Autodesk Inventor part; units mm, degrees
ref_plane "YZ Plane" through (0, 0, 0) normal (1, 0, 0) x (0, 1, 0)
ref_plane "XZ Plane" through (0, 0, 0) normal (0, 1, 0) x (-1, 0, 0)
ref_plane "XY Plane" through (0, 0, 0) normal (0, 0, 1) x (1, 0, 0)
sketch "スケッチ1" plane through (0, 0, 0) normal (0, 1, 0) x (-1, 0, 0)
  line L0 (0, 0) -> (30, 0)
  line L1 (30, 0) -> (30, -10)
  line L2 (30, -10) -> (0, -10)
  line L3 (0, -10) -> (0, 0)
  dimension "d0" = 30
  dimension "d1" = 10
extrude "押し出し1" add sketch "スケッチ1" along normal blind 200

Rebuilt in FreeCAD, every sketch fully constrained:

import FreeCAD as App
import Part
import Sketcher
from FreeCAD import Vector

doc = App.newDocument("Part")
body = doc.addObject("PartDesign::Body", "Body")

# Sketch on XZ plane
sketch1 = body.newObject("Sketcher::SketchObject", "Sketch")
sketch1.AttachmentSupport = (doc.getObject("XZ_Plane"), [""])
sketch1.MapMode = "FlatFace"
sketch1.addGeometry([
    Part.LineSegment(Vector(-30, 0, 0), Vector(0, 0, 0)),
    Part.LineSegment(Vector(0, 0, 0), Vector(0, -10, 0)),
    Part.LineSegment(Vector(0, -10, 0), Vector(-30, -10, 0)),
    Part.LineSegment(Vector(-30, -10, 0), Vector(-30, 0, 0)),
], False)
sketch1.addConstraint([
    Sketcher.Constraint("Coincident", 0, 2, 1, 1),
    Sketcher.Constraint("Coincident", 1, 2, 2, 1),
    Sketcher.Constraint("Coincident", 2, 2, 3, 1),
    Sketcher.Constraint("Coincident", 3, 2, 0, 1),
    Sketcher.Constraint("Horizontal", 0),
    Sketcher.Constraint("Vertical", 1),
    Sketcher.Constraint("Horizontal", 2),
    Sketcher.Constraint("Vertical", 3),
    Sketcher.Constraint("Coincident", 0, 2, -1, 1),
    Sketcher.Constraint("DistanceX", 0, 1, 0, 2, 30.0),
    Sketcher.Constraint("DistanceY", 1, 2, 1, 1, 10.0),
])
pad1 = body.newObject("PartDesign::Pad", "Pad")
pad1.Profile = sketch1
pad1.Length = 200
pad1.Reversed = True

doc.recompute()
